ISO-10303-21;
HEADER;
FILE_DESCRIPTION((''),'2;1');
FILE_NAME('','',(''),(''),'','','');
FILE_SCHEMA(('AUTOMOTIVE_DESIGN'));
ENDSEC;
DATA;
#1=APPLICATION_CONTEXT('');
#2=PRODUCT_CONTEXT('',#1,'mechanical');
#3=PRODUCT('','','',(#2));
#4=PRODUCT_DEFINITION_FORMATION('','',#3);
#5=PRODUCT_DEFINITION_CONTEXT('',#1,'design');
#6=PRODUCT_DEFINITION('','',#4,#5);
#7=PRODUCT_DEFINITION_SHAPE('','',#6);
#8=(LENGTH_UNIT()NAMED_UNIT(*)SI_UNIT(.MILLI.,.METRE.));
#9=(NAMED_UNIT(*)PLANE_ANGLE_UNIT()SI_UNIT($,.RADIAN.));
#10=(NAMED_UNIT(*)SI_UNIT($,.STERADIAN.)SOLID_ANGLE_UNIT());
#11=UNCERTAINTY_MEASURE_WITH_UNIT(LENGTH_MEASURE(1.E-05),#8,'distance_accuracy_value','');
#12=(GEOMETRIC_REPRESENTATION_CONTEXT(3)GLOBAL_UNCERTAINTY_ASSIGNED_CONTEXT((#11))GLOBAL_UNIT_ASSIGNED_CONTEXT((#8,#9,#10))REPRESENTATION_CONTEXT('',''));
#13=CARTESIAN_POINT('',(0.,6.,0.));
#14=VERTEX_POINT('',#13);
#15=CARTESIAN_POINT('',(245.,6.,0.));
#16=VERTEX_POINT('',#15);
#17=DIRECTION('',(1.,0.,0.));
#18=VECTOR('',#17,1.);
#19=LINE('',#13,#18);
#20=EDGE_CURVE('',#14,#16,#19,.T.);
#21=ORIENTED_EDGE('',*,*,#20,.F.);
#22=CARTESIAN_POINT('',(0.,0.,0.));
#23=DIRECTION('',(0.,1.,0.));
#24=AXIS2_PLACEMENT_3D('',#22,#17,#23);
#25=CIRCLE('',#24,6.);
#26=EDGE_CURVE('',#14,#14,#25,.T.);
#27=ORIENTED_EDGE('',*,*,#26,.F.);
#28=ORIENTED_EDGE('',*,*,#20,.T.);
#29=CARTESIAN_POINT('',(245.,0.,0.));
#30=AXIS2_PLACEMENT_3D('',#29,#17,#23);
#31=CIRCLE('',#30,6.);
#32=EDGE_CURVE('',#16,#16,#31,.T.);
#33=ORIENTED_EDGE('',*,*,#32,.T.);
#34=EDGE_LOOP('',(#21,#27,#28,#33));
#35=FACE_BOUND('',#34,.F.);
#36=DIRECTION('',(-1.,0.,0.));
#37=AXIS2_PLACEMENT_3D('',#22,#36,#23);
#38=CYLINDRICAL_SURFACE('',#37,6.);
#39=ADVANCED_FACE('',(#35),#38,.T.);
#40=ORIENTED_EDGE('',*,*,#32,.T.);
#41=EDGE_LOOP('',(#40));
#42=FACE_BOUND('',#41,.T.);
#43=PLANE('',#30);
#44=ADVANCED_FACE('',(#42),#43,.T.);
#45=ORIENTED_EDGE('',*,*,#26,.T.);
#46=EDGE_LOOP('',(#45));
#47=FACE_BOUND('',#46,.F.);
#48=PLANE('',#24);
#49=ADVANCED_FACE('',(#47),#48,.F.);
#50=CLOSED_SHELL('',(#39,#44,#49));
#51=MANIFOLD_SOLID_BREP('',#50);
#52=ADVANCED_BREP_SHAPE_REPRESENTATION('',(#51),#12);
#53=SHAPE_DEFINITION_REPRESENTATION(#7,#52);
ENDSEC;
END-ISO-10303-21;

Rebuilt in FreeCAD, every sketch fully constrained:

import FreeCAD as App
import Part
import Sketcher

V = App.Vector

doc = App.newDocument("Part")
params = doc.addObject("Spreadsheet::Sheet", "Params")
for row, (alias, value) in enumerate([
    ("sketch1_diameter", "12 mm"),
    ("pad1_length", "245 mm"),
], start=1):
    params.set(f"A{row}", alias)
    params.set(f"B{row}", "=" + value)
    params.setAlias(f"B{row}", alias)

body = doc.addObject("PartDesign::Body", "Body")

# Sketch on YZ plane
sketch1 = doc.addObject("Sketcher::SketchObject", "Sketch")
body.addObject(sketch1)
sketch1.AttachmentSupport = (doc.YZ_Plane, [""])
sketch1.MapMode = "FlatFace"
sketch1.addGeometry(Part.Circle(V(0, 0, 0), V(0, 0, 1), 6), False)
sketch1.addConstraint([
    Sketcher.Constraint("Coincident", 0, 3, -1, 1),
    Sketcher.Constraint("Diameter", 0, 12.0),
])
sketch1.setExpression("Constraints[1]", "Params.sketch1_diameter")
pad1 = doc.addObject("PartDesign::Pad", "Pad")
body.addObject(pad1)
pad1.Profile = sketch1
pad1.setExpression("Length", "Params.pad1_length")

doc.recompute()
